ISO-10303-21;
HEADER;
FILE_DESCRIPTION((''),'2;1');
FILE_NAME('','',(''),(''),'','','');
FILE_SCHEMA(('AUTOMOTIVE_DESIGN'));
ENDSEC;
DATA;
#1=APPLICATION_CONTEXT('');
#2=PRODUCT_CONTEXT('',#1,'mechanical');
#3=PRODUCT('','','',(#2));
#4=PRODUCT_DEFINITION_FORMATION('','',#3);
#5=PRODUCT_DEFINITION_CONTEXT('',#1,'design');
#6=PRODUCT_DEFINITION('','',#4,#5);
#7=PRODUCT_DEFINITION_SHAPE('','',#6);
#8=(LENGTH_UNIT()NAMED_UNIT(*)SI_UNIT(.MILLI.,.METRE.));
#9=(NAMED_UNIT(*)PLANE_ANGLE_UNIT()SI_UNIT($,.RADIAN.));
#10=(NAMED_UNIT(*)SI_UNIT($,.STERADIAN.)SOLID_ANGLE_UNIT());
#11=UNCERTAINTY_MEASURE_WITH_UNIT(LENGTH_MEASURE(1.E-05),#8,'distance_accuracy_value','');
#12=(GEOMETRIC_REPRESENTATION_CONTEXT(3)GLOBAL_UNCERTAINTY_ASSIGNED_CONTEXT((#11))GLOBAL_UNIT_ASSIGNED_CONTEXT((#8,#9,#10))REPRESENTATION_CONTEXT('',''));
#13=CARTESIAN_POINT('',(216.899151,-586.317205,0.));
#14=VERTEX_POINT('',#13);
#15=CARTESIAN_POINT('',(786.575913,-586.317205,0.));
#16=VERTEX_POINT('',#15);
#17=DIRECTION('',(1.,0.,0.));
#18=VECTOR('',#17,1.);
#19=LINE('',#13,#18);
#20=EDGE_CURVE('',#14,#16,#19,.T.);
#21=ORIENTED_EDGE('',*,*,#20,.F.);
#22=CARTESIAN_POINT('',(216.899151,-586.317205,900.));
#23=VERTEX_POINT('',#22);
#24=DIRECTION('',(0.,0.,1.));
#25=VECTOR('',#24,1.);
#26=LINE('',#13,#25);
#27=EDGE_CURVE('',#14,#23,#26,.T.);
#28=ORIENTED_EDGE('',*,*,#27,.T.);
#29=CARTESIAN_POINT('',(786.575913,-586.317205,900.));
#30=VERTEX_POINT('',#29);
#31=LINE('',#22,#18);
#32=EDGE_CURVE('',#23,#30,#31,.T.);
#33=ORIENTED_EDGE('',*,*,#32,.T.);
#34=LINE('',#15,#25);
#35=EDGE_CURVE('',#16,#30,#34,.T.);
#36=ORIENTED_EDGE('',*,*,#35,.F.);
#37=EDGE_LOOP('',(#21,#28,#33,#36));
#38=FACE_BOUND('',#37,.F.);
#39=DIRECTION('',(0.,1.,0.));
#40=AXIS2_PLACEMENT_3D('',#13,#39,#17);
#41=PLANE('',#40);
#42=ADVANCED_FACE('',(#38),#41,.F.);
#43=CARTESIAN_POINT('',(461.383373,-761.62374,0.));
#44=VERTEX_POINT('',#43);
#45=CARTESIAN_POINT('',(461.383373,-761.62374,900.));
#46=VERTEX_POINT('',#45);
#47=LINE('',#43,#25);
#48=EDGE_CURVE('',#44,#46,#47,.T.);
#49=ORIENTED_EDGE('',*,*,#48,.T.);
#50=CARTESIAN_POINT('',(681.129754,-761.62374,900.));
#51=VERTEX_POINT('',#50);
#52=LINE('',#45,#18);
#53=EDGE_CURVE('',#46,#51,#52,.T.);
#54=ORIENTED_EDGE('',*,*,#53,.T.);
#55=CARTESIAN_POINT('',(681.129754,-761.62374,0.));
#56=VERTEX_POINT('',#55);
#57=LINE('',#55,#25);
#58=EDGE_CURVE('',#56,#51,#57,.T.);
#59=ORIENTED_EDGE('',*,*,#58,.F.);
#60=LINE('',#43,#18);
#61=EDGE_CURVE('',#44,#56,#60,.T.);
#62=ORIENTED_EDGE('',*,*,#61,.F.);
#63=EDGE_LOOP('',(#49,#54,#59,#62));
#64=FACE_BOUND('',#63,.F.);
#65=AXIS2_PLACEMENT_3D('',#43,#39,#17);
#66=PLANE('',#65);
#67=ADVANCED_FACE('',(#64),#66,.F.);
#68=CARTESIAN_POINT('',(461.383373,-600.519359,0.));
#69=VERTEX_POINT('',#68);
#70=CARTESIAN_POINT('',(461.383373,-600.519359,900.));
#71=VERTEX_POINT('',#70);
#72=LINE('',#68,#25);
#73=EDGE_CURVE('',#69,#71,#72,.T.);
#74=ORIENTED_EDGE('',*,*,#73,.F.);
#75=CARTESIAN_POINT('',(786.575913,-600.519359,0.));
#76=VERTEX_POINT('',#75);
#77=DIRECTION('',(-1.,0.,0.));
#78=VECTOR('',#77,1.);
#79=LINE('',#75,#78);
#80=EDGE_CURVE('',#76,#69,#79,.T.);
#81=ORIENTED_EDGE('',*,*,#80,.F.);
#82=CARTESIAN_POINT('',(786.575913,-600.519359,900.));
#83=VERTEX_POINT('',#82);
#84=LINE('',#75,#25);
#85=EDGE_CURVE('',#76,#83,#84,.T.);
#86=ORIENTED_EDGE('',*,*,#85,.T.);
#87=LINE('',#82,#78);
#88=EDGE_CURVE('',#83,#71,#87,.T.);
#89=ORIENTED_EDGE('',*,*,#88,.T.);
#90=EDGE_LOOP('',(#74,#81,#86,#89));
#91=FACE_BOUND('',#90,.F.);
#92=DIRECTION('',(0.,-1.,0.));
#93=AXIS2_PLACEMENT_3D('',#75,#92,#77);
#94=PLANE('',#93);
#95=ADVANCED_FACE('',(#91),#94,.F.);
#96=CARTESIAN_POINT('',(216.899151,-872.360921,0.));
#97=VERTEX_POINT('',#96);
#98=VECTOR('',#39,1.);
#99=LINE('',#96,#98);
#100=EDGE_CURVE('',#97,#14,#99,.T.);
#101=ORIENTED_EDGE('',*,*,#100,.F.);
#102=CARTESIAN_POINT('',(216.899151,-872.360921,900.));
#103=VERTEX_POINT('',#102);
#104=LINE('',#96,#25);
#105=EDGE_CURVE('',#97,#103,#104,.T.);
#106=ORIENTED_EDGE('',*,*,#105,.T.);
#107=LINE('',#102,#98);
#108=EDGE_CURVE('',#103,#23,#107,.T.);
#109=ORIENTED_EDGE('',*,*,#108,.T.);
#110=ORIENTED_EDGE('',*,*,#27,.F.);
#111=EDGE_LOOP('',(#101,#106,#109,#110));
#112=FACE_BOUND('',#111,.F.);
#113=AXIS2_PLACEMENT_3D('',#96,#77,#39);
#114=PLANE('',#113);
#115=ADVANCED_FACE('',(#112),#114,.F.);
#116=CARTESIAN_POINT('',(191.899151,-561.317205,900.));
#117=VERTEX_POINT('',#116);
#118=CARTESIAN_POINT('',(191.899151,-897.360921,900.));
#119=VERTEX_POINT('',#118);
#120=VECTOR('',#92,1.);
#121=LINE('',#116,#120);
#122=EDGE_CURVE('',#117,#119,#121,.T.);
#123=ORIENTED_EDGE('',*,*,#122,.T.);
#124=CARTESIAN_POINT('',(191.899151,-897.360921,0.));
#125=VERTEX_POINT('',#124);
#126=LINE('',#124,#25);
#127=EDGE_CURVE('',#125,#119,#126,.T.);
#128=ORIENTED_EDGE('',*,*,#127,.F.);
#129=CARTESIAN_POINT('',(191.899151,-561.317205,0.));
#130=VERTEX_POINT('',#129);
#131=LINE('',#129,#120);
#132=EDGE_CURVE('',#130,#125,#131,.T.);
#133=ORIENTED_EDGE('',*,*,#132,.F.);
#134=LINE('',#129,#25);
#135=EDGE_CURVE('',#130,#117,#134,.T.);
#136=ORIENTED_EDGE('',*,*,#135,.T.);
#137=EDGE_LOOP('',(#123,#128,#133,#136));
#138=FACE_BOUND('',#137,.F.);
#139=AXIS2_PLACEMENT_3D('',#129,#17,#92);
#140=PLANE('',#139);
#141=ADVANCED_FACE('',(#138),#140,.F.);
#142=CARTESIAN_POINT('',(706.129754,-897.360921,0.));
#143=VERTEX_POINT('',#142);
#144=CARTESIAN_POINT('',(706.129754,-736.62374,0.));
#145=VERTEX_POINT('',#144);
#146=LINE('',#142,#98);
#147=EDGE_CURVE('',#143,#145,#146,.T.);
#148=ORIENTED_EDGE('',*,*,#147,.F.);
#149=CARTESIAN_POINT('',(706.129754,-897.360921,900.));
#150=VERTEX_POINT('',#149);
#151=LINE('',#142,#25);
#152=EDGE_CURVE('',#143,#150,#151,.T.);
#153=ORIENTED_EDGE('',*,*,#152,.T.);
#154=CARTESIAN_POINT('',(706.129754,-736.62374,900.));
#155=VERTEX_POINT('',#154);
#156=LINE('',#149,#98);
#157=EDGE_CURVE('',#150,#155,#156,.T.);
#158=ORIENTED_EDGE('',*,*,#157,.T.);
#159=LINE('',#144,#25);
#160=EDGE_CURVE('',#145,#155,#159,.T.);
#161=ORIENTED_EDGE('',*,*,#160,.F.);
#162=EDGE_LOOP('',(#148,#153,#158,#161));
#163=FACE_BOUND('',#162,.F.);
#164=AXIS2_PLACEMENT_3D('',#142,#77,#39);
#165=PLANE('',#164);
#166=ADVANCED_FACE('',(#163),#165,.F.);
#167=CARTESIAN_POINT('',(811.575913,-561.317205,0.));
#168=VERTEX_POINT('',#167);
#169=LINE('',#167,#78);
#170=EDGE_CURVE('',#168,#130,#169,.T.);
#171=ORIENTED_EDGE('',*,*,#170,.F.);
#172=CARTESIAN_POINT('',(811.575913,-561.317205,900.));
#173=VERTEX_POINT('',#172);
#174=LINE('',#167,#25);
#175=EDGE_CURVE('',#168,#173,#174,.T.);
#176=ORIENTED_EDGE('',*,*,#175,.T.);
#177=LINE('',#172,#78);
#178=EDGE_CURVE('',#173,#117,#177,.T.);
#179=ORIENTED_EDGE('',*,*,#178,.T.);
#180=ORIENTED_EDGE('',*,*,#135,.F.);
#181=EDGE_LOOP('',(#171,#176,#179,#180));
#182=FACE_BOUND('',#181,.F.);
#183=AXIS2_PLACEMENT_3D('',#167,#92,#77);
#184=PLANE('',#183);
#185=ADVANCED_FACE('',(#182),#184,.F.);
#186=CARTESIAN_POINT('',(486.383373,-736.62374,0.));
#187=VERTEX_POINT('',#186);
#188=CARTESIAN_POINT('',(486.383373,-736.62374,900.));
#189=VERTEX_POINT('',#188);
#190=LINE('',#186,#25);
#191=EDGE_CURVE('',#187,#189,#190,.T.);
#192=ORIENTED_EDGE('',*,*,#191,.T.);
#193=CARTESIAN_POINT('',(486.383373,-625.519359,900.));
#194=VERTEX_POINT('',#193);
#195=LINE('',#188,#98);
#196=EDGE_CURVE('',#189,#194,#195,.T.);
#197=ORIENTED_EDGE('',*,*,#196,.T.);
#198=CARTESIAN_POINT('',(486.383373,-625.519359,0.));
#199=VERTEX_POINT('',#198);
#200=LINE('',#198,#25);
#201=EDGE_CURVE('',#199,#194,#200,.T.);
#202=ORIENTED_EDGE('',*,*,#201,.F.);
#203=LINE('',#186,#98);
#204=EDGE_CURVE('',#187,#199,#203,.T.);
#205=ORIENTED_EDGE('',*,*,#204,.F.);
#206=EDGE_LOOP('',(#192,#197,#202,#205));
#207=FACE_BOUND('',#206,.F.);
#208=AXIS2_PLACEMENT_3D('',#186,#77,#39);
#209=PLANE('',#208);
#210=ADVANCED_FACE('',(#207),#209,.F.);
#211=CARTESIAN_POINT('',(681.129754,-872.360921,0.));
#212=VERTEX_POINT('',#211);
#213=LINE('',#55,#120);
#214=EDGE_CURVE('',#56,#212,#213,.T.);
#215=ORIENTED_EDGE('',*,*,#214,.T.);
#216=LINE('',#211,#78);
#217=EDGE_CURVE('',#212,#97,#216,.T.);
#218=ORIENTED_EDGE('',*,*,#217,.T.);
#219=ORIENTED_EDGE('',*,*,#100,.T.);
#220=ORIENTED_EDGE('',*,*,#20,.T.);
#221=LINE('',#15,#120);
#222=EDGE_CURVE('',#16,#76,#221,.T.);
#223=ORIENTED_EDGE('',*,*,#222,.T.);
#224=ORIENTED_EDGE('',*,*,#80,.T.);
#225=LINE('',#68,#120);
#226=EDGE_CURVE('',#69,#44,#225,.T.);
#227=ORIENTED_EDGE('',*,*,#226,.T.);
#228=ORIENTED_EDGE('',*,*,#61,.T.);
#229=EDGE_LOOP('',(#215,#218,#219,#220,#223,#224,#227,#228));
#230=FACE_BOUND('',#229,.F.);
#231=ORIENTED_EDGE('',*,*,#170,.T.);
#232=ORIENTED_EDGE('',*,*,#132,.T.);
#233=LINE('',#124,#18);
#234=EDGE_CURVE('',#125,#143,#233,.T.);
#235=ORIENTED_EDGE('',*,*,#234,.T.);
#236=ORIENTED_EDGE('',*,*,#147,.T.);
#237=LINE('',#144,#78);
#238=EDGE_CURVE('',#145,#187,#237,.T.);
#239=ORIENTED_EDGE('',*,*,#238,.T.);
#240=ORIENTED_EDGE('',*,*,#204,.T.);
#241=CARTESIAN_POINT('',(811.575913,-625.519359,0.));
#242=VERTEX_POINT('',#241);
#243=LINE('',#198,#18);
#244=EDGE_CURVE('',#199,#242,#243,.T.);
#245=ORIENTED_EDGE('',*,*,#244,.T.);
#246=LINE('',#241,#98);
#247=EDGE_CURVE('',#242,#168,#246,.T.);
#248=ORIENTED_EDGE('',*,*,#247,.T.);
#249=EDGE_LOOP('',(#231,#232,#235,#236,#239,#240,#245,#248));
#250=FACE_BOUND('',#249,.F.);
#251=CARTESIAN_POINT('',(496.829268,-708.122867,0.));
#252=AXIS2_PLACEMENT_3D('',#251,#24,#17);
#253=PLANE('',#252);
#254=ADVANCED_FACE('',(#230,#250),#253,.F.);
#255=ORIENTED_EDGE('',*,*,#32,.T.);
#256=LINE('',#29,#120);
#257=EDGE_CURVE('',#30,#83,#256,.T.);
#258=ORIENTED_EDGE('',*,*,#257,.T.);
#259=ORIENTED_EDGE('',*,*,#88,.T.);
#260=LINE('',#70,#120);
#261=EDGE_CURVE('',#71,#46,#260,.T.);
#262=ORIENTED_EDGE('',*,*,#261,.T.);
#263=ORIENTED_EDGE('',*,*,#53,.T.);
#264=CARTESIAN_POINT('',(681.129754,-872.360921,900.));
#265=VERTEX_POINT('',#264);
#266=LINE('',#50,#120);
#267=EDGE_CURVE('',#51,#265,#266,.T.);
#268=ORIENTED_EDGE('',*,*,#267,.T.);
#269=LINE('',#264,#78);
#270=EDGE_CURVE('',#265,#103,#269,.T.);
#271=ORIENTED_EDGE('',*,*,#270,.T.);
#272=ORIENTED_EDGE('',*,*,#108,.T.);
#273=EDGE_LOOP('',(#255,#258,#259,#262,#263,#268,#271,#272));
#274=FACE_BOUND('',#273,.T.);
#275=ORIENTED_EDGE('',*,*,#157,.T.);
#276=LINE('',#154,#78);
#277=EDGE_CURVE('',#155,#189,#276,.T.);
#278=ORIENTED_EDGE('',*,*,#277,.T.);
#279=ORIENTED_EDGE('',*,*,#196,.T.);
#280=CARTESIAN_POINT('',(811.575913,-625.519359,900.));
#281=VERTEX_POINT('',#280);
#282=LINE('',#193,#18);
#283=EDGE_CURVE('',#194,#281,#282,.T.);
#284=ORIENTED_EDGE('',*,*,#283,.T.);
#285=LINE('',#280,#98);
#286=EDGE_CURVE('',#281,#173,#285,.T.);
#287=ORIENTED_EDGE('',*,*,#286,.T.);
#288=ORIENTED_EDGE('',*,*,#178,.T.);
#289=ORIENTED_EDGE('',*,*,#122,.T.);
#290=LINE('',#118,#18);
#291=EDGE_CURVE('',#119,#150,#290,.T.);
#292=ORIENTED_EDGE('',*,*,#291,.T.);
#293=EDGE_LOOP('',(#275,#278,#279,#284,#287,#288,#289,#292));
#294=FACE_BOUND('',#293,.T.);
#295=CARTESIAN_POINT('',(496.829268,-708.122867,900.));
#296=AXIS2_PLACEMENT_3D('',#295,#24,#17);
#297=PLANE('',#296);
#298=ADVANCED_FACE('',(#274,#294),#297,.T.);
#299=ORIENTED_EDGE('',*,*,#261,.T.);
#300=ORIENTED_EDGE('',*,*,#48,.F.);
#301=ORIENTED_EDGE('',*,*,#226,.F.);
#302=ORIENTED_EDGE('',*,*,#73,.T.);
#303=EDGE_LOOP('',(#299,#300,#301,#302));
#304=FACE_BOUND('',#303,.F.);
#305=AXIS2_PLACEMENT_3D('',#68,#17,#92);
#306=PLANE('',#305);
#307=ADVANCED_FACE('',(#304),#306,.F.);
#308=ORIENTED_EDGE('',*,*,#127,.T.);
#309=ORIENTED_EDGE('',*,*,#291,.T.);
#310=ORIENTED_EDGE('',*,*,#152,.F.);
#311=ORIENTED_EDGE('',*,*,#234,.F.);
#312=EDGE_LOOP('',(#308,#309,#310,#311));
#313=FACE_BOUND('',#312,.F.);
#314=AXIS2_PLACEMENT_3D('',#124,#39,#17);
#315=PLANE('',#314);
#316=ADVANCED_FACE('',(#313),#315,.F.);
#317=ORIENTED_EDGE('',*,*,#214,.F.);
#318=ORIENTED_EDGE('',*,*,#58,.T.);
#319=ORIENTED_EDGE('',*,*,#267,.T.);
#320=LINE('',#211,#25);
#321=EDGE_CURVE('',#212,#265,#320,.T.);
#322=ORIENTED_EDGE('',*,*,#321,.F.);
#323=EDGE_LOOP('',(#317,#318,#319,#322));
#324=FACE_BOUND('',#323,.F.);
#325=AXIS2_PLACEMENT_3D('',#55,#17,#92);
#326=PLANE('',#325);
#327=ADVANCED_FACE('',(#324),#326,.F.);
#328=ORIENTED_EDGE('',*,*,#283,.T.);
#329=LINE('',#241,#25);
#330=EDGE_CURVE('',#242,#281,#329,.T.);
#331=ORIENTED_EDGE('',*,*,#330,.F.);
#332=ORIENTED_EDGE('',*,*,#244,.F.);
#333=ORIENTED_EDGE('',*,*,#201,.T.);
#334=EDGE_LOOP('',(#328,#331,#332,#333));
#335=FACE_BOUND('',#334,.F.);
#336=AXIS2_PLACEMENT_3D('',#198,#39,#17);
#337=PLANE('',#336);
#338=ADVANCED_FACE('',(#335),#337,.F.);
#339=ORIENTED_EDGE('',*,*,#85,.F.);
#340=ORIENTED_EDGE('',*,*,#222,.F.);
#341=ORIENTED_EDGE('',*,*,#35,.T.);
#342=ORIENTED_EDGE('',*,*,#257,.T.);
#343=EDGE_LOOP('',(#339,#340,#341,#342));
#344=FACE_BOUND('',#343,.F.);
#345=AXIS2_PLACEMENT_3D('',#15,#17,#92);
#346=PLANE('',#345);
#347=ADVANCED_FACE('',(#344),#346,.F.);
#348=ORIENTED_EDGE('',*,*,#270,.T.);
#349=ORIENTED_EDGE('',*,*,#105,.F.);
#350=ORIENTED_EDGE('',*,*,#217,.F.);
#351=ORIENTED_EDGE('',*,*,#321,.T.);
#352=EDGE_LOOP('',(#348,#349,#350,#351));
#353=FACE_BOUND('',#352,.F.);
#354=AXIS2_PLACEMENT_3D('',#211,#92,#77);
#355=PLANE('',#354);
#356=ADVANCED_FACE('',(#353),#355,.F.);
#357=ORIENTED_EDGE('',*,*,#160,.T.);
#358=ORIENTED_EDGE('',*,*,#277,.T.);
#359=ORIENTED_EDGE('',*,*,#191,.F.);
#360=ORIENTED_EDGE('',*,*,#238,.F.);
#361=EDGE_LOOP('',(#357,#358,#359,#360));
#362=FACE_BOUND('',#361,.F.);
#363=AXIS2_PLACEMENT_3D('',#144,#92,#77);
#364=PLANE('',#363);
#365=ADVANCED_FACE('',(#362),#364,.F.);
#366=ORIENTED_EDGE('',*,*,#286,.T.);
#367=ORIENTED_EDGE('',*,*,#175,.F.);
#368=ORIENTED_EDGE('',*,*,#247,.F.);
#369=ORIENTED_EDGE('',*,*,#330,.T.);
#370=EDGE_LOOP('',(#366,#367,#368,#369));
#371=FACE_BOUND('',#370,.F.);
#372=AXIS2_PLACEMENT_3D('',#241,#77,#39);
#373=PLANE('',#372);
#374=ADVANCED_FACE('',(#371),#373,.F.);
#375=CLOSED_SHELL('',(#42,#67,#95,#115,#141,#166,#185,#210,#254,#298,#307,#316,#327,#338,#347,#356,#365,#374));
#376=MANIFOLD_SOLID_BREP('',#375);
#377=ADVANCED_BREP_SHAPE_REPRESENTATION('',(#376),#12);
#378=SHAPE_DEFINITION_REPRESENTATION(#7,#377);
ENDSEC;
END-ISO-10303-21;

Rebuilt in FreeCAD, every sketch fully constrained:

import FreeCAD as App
import Part
import Sketcher

doc = App.newDocument("Part")
params = doc.addObject("Spreadsheet::Sheet", "Params")
for row, (alias, value) in enumerate([
    ("pad1_length", "900 mm"),
], start=1):
    params.set(f"A{row}", alias)
    params.set(f"B{row}", "=" + value)
    params.setAlias(f"B{row}", alias)

body = doc.addObject("PartDesign::Body", "Body")

# Sketch on XY plane
sketch1 = doc.addObject("Sketcher::SketchObject", "Sketch")
body.addObject(sketch1)
sketch1.AttachmentSupport = (doc.XY_Plane, [""])
sketch1.MapMode = "FlatFace"
sketch1.addGeometry([
    Part.LineSegment(App.Vector(812, -561, 0), App.Vector(192, -561, 0)),  # 0
    Part.LineSegment(App.Vector(192, -561, 0), App.Vector(192, -897, 0)),  # 1
    Part.LineSegment(App.Vector(192, -897, 0), App.Vector(706, -897, 0)),  # 2
    Part.LineSegment(App.Vector(706, -897, 0), App.Vector(706, -737, 0)),  # 3
    Part.LineSegment(App.Vector(706, -737, 0), App.Vector(486, -737, 0)),  # 4
    Part.LineSegment(App.Vector(486, -737, 0), App.Vector(486, -626, 0)),  # 5
    Part.LineSegment(App.Vector(486, -626, 0), App.Vector(812, -626, 0)),  # 6
    Part.LineSegment(App.Vector(812, -626, 0), App.Vector(812, -561, 0)),  # 7
    Part.LineSegment(App.Vector(217, -872, 0), App.Vector(217, -586, 0)),  # 8
    Part.LineSegment(App.Vector(217, -586, 0), App.Vector(787, -586, 0)),  # 9
    Part.LineSegment(App.Vector(787, -586, 0), App.Vector(787, -601, 0)),  # 10
    Part.LineSegment(App.Vector(787, -601, 0), App.Vector(461, -601, 0)),  # 11
    Part.LineSegment(App.Vector(461, -601, 0), App.Vector(461, -762, 0)),  # 12
    Part.LineSegment(App.Vector(461, -762, 0), App.Vector(681, -762, 0)),  # 13
    Part.LineSegment(App.Vector(681, -762, 0), App.Vector(681, -872, 0)),  # 14
    Part.LineSegment(App.Vector(681, -872, 0), App.Vector(217, -872, 0)),  # 15
], False)
sketch1.addConstraint([
    Sketcher.Constraint("Coincident", 0, 2, 1, 1),
    Sketcher.Constraint("Coincident", 1, 2, 2, 1),
    Sketcher.Constraint("Coincident", 2, 2, 3, 1),
    Sketcher.Constraint("Coincident", 3, 2, 4, 1),
    Sketcher.Constraint("Coincident", 4, 2, 5, 1),
    Sketcher.Constraint("Coincident", 5, 2, 6, 1),
    Sketcher.Constraint("Coincident", 6, 2, 7, 1),
    Sketcher.Constraint("Coincident", 7, 2, 0, 1),
    Sketcher.Constraint("Coincident", 8, 2, 9, 1),
    Sketcher.Constraint("Coincident", 9, 2, 10, 1),
    Sketcher.Constraint("Coincident", 10, 2, 11, 1),
    Sketcher.Constraint("Coincident", 11, 2, 12, 1),
    Sketcher.Constraint("Coincident", 12, 2, 13, 1),
    Sketcher.Constraint("Coincident", 13, 2, 14, 1),
    Sketcher.Constraint("Coincident", 14, 2, 15, 1),
    Sketcher.Constraint("Coincident", 15, 2, 8, 1),
    Sketcher.Constraint("Horizontal", 0),
    Sketcher.Constraint("Vertical", 1),
    Sketcher.Constraint("Horizontal", 2),
    Sketcher.Constraint("Vertical", 3),
    Sketcher.Constraint("Horizontal", 4),
    Sketcher.Constraint("Vertical", 5),
    Sketcher.Constraint("Horizontal", 6),
    Sketcher.Constraint("Vertical", 7),
    Sketcher.Constraint("Vertical", 8),
    Sketcher.Constraint("Horizontal", 9),
    Sketcher.Constraint("Vertical", 10),
    Sketcher.Constraint("Horizontal", 11),
    Sketcher.Constraint("Vertical", 12),
    Sketcher.Constraint("Horizontal", 13),
    Sketcher.Constraint("Vertical", 14),
    Sketcher.Constraint("Horizontal", 15),
    Sketcher.Constraint("Equal", 6, 11),
    Sketcher.Constraint("Equal", 4, 13),
    Sketcher.Constraint("DistanceX", 0, 2, 8, 2, 25.0),
    Sketcher.Constraint("DistanceY", 8, 2, 0, 2, 25.0),
    Sketcher.Constraint("DistanceX", 9, 2, 7, 2, 25.0),
    Sketcher.Constraint("DistanceY", 6, 2, 10, 2, 25.0),
    Sketcher.Constraint("DistanceY", 12, 2, 4, 2, 25.0),
    Sketcher.Constraint("DistanceY", 2, 2, 14, 2, 25.0),
    Sketcher.Constraint("DistanceX", 4, 2, 4, 1, 219.746381),
    Sketcher.Constraint("DistanceX", 6, 1, 6, 2, 325.19254),
    Sketcher.Constraint("DistanceY", 3, 1, 3, 2, 160.737181),
    Sketcher.Constraint("DistanceY", 5, 1, 5, 2, 111.104381),
    Sketcher.Constraint("DistanceX", 0, 2, 0, 1, 619.676762),
    Sketcher.Constraint("DistanceY", 1, 2, 1, 1, 336.043716),
    Sketcher.Constraint("DistanceX", -1, 1, 0, 2, 191.899151),
    Sketcher.Constraint("DistanceY", 1, 2, -1, 1, 897.360921),
])
pad1 = doc.addObject("PartDesign::Pad", "Pad")
body.addObject(pad1)
pad1.Profile = sketch1
pad1.setExpression("Length", "Params.pad1_length")

doc.recompute()
